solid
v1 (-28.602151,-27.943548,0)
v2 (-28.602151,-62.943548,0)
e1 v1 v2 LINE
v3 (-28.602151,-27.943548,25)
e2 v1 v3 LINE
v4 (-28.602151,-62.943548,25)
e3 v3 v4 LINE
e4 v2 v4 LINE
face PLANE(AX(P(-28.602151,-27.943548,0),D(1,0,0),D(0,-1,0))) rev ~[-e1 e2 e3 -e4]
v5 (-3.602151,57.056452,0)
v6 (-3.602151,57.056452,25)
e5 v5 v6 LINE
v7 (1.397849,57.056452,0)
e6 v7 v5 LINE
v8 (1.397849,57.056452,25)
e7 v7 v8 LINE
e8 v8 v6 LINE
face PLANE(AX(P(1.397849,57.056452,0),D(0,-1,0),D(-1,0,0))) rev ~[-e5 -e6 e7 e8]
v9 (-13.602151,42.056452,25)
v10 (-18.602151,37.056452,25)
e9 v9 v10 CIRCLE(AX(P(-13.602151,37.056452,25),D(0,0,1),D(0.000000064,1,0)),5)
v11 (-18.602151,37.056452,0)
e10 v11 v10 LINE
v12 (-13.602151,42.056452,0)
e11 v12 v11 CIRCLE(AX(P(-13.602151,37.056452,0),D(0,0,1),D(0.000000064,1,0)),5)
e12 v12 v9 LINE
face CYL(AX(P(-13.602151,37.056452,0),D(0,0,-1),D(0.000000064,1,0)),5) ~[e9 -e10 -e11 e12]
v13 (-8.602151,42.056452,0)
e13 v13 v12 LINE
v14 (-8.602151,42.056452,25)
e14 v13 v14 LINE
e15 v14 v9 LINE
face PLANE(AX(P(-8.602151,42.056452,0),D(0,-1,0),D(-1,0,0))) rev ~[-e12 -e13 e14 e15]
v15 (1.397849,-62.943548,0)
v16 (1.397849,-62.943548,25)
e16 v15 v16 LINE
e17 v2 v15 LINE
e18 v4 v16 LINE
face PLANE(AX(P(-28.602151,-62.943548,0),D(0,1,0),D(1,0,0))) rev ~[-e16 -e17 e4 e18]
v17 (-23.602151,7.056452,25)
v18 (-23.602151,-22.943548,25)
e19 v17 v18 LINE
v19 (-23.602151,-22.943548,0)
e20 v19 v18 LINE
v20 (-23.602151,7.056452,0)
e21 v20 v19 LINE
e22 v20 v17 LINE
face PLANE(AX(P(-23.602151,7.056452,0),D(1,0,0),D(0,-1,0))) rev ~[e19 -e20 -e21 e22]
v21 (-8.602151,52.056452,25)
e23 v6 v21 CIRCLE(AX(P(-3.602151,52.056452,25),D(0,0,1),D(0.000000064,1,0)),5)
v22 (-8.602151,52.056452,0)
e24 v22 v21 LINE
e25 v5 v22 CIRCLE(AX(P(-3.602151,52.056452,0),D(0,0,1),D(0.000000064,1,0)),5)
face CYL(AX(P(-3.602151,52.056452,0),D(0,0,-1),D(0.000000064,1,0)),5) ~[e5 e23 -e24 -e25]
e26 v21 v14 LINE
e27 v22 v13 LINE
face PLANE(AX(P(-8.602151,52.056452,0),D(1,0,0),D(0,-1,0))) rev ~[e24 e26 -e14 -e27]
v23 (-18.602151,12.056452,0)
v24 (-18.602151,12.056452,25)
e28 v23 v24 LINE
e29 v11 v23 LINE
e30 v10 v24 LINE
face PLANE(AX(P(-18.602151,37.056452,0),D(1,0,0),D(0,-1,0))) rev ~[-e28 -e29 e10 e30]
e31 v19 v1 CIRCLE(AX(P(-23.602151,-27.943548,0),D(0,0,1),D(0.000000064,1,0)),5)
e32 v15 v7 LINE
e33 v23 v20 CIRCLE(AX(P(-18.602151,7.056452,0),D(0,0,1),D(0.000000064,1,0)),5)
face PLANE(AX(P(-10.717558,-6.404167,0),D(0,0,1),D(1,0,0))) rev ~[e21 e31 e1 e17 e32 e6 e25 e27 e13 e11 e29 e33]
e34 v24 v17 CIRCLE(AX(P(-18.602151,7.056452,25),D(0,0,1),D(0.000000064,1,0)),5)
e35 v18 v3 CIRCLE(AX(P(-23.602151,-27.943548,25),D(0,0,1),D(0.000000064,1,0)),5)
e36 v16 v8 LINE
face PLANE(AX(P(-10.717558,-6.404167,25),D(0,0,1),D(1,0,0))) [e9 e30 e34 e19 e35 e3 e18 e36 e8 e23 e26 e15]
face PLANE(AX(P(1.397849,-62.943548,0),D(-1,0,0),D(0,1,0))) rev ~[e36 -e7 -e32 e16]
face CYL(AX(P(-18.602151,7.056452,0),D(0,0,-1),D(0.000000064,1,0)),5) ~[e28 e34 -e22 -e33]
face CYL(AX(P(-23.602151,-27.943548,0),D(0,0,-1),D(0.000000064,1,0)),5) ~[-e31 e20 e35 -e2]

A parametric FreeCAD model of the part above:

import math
import FreeCAD as App
import Part
import Sketcher
Q = App.Units.Quantity

doc = App.newDocument("Part")
body = doc.addObject("PartDesign::Body", "Body")

# Sketch on XY plane
sketch1 = body.newObject("Sketcher::SketchObject", "Sketch")
sketch1.AttachmentSupport = (doc.getObject("XY_Plane"), [""])
sketch1.MapMode = "FlatFace"
sketch1.addGeometry(Part.LineSegment(App.Vector(-28.602151, -27.943548, 0), App.Vector(-28.602151, -62.943548, 0)), False)
sketch1.addGeometry(Part.LineSegment(App.Vector(-28.602151, -62.943548, 0), App.Vector(1.397849, -62.943548, 0)), False)
sketch1.addGeometry(Part.LineSegment(App.Vector(1.397849, -62.943548, 0), App.Vector(1.397849, 57.056452, 0)), False)
sketch1.addGeometry(Part.LineSegment(App.Vector(1.397849, 57.056452, 0), App.Vector(-3.602151, 57.056452, 0)), False)
sketch1.addGeometry(Part.ArcOfCircle(Part.Circle(App.Vector(-3.602151, 52.056452, 0), App.Vector(0, 0, 1), 5), math.radians(89.999996), math.radians(180.000004)), False)
sketch1.addGeometry(Part.LineSegment(App.Vector(-8.602151, 52.056452, 0), App.Vector(-8.602151, 42.056452, 0)), False)
sketch1.addGeometry(Part.LineSegment(App.Vector(-8.602151, 42.056452, 0), App.Vector(-13.602151, 42.056452, 0)), False)
sketch1.addGeometry(Part.ArcOfCircle(Part.Circle(App.Vector(-13.602151, 37.056452, 0), App.Vector(0, 0, 1), 5), math.radians(89.999996), math.radians(180.000004)), False)
sketch1.addGeometry(Part.LineSegment(App.Vector(-18.602151, 37.056452, 0), App.Vector(-18.602151, 12.056452, 0)), False)
sketch1.addGeometry(Part.ArcOfCircle(Part.Circle(App.Vector(-18.602151, 7.056452, 0), App.Vector(0, 0, 1), 5), math.radians(89.999996), math.radians(180.000004)), False)
sketch1.addGeometry(Part.LineSegment(App.Vector(-23.602151, 7.056452, 0), App.Vector(-23.602151, -22.943548, 0)), False)
sketch1.addGeometry(Part.ArcOfCircle(Part.Circle(App.Vector(-23.602151, -27.943548, 0), App.Vector(0, 0, 1), 5), math.radians(89.999996), math.radians(180.000004)), False)
sketch1.addConstraint(Sketcher.Constraint("Coincident", 0, 2, 1, 1))
sketch1.addConstraint(Sketcher.Constraint("Coincident", 1, 2, 2, 1))
sketch1.addConstraint(Sketcher.Constraint("Coincident", 2, 2, 3, 1))
sketch1.addConstraint(Sketcher.Constraint("Tangent", 3, 2, 4, 1))
sketch1.addConstraint(Sketcher.Constraint("Tangent", 4, 2, 5, 1))
sketch1.addConstraint(Sketcher.Constraint("Coincident", 5, 2, 6, 1))
sketch1.addConstraint(Sketcher.Constraint("Tangent", 6, 2, 7, 1))
sketch1.addConstraint(Sketcher.Constraint("Tangent", 7, 2, 8, 1))
sketch1.addConstraint(Sketcher.Constraint("Coincident", 8, 2, 9, 1))
sketch1.addConstraint(Sketcher.Constraint("Tangent", 9, 2, 10, 1))
sketch1.addConstraint(Sketcher.Constraint("Coincident", 10, 2, 11, 1))
sketch1.addConstraint(Sketcher.Constraint("Tangent", 11, 2, 0, 1))
sketch1.addConstraint(Sketcher.Constraint("Vertical", 0))
sketch1.addConstraint(Sketcher.Constraint("Horizontal", 1))
sketch1.addConstraint(Sketcher.Constraint("Vertical", 2))
sketch1.addConstraint(Sketcher.Constraint("Horizontal", 3))
sketch1.addConstraint(Sketcher.Constraint("Vertical", 5))
sketch1.addConstraint(Sketcher.Constraint("Horizontal", 6))
sketch1.addConstraint(Sketcher.Constraint("Vertical", 8))
sketch1.addConstraint(Sketcher.Constraint("Vertical", 10))
sketch1.addConstraint(Sketcher.Constraint("Equal", 4, 7))
sketch1.addConstraint(Sketcher.Constraint("Equal", 7, 9))
sketch1.addConstraint(Sketcher.Constraint("Equal", 9, 11))
sketch1.addConstraint(Sketcher.Constraint("Vertical", 9, 3, 7, 2))
sketch1.addConstraint(Sketcher.Constraint("Vertical", 11, 3, 9, 2))
sketch1.addConstraint(Sketcher.Constraint("Equal", 3, 6))
sketch1.addConstraint(Sketcher.Constraint("Equal", 1, 10))
sketch1.addConstraint(Sketcher.Constraint("Radius", 4, Q("5 mm")))
sketch1.addConstraint(Sketcher.Constraint("DistanceX", 1, 1, 1, 2, Q("30 mm")))
sketch1.addConstraint(Sketcher.Constraint("DistanceY", 0, 2, 0, 1, Q("35 mm")))
sketch1.addConstraint(Sketcher.Constraint("DistanceY", 2, 1, 2, 2, Q("120 mm")))
sketch1.addConstraint(Sketcher.Constraint("DistanceY", 5, 2, 5, 1, Q("10 mm")))
sketch1.addConstraint(Sketcher.Constraint("DistanceX", 4, 3, -1, 1, Q("3.602151 mm")))
sketch1.addConstraint(Sketcher.Constraint("DistanceY", 10, 2, -1, 1, Q("22.943548 mm")))
pad1 = body.newObject("PartDesign::Pad", "Pad")
pad1.Profile = sketch1
pad1.Length = 25

doc.recompute()
